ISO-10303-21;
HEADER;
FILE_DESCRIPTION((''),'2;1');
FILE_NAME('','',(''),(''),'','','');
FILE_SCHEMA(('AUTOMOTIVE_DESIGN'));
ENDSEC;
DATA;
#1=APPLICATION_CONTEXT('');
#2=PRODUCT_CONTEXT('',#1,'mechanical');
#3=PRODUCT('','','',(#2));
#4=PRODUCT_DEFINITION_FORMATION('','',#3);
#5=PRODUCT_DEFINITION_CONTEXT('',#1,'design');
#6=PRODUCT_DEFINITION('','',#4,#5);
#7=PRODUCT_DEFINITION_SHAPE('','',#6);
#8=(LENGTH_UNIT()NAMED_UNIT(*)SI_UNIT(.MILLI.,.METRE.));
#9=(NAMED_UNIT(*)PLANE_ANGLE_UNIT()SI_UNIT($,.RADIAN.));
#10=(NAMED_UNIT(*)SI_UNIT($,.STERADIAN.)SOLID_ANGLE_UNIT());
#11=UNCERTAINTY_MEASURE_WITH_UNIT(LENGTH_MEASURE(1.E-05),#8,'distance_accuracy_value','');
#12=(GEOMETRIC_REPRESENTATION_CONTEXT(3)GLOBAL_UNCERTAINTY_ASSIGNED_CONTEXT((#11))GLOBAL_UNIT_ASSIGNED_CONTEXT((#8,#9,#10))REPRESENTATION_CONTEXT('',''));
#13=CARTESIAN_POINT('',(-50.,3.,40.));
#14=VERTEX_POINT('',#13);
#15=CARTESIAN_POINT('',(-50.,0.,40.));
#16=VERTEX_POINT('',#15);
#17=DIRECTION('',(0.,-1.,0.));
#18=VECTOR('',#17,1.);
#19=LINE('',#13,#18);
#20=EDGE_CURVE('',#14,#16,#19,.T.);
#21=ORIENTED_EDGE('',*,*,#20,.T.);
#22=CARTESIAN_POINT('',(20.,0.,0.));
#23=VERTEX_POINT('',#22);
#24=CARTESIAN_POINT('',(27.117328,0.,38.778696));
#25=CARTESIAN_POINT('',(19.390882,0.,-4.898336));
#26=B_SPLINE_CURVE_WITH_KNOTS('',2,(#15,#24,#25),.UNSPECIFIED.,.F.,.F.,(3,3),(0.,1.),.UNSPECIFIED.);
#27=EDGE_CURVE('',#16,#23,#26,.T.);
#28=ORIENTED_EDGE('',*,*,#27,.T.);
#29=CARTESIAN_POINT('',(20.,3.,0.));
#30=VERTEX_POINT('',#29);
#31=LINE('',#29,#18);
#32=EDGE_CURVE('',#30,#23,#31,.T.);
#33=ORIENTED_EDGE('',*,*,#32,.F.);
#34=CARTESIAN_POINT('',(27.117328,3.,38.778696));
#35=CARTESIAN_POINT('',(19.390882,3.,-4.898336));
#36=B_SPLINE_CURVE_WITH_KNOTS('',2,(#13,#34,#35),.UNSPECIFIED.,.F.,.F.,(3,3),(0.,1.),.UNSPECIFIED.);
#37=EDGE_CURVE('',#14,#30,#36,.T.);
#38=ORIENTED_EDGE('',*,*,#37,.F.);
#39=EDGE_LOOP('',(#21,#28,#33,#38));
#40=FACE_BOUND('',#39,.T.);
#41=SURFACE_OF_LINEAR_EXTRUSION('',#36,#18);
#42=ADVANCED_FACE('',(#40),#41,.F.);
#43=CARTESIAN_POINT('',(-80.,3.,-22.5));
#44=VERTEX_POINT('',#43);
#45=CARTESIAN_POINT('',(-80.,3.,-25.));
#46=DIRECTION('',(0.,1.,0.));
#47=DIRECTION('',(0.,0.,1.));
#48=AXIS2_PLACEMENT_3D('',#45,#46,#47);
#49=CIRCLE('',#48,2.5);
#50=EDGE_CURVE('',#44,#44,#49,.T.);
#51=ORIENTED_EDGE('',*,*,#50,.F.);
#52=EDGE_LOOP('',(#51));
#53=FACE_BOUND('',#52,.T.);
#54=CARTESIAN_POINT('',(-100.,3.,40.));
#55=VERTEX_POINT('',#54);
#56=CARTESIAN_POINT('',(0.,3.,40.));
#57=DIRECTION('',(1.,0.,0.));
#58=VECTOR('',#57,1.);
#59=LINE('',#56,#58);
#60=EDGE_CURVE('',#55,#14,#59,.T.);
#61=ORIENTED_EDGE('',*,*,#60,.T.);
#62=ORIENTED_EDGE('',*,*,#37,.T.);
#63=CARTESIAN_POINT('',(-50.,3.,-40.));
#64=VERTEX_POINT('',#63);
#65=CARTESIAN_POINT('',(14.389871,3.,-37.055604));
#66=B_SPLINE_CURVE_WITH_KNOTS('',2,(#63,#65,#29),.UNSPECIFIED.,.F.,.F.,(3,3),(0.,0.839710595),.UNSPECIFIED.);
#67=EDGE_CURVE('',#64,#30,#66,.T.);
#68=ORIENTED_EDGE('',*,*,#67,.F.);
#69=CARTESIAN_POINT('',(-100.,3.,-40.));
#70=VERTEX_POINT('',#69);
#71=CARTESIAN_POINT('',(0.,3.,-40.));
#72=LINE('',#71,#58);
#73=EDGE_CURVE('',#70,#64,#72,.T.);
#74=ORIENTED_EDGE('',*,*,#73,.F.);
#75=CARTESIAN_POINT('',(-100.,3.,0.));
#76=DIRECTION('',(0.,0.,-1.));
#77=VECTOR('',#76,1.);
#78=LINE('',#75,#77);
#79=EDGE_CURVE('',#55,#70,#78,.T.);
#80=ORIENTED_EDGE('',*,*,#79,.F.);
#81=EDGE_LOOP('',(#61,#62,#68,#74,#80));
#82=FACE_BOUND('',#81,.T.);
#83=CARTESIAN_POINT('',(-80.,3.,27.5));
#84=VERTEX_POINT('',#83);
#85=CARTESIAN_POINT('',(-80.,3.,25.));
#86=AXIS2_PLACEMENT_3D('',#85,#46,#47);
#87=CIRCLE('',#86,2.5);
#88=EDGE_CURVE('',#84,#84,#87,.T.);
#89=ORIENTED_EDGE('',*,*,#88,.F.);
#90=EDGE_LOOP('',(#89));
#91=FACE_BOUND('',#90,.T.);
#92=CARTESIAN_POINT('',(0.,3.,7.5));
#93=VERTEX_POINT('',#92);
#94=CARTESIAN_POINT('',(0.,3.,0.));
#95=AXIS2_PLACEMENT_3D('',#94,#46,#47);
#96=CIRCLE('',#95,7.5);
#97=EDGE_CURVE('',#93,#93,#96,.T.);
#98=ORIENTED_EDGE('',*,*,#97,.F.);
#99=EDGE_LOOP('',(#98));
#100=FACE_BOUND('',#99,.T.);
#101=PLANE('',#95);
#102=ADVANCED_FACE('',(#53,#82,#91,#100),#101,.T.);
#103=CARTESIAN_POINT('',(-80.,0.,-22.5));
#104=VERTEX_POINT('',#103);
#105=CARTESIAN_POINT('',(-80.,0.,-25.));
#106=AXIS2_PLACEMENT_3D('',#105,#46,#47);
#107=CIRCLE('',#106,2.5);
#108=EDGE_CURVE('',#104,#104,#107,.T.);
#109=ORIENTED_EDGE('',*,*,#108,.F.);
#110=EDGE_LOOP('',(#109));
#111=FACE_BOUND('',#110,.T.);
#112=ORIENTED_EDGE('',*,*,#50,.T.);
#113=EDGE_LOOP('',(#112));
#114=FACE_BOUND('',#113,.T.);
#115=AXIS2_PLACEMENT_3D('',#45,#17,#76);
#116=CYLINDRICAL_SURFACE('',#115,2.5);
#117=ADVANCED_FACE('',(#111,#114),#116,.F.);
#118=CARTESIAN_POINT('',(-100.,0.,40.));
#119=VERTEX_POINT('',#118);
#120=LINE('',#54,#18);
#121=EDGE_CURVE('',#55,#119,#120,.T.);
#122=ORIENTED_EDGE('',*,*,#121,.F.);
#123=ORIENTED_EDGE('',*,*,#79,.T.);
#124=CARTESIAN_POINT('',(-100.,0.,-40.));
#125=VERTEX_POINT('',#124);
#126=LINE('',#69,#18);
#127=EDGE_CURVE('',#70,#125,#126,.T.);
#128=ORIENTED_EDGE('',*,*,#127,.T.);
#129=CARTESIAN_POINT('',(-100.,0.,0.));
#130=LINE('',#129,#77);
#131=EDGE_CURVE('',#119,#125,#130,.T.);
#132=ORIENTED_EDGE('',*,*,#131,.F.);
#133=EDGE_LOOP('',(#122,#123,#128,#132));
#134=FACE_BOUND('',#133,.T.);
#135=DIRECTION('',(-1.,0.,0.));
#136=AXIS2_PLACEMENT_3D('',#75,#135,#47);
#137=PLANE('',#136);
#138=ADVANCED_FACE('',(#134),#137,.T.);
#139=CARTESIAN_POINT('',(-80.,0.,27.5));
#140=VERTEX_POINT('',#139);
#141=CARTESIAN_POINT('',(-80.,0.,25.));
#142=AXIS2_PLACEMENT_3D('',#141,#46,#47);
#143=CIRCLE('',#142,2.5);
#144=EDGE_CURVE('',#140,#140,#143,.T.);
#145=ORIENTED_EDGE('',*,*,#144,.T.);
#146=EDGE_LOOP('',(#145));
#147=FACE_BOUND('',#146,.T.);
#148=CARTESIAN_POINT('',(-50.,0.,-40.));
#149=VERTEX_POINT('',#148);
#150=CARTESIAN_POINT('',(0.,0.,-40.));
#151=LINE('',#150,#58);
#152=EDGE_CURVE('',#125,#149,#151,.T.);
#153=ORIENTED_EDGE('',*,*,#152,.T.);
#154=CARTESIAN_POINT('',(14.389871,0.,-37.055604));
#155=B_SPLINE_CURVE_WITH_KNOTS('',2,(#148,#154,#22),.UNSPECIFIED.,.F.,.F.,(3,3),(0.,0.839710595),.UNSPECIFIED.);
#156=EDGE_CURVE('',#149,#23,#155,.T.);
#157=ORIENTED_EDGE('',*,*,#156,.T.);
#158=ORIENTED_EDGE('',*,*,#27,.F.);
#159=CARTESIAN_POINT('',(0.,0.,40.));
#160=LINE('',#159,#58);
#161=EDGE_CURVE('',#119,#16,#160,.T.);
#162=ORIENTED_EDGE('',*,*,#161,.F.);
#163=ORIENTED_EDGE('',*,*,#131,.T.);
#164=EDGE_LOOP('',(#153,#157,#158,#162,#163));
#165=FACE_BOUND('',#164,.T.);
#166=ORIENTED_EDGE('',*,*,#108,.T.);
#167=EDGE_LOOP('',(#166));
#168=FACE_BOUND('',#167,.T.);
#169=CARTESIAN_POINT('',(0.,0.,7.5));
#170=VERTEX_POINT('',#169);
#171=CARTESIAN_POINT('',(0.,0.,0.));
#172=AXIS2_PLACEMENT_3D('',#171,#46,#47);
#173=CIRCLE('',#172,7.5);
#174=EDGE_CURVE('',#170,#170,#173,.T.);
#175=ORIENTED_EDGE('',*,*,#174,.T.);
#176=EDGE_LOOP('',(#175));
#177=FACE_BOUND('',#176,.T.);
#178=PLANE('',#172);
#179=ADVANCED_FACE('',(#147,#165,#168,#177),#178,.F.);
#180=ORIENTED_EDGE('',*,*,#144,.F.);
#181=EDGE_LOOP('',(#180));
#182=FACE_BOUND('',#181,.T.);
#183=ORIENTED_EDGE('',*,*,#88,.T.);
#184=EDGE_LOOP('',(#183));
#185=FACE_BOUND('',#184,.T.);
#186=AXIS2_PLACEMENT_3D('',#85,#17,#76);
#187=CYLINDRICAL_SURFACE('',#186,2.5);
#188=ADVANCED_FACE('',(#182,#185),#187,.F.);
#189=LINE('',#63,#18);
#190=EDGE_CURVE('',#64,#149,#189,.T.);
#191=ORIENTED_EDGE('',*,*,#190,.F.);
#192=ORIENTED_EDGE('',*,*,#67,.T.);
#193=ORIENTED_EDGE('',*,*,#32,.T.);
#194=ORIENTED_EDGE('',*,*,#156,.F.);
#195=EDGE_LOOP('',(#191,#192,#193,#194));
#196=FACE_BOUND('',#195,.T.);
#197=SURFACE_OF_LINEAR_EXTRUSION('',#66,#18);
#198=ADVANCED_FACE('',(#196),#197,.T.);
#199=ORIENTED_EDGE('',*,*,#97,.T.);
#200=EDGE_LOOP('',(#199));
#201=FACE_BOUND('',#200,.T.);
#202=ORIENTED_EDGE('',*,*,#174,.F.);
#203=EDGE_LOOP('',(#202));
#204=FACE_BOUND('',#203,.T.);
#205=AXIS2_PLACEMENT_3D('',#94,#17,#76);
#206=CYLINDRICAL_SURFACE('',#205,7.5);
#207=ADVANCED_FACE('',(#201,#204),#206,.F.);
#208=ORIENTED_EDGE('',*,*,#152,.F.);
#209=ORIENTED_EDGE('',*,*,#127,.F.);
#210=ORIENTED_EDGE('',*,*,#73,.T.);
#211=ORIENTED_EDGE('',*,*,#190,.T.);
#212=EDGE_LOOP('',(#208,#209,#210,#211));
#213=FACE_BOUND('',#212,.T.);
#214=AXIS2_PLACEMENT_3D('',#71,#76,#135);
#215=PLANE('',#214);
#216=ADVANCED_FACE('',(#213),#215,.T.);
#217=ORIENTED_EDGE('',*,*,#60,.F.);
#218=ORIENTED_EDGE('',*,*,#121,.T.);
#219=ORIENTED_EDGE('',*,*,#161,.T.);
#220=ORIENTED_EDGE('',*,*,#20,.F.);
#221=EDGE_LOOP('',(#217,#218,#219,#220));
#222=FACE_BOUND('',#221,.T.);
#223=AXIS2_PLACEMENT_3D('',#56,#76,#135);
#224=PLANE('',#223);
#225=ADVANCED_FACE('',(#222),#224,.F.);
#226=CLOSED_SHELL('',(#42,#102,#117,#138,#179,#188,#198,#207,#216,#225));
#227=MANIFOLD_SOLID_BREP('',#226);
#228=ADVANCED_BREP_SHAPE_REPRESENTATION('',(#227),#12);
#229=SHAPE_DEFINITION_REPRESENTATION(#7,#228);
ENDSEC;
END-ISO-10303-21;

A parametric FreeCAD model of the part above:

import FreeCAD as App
import Part
import Sketcher
Q = App.Units.Quantity

doc = App.newDocument("Part")
body = doc.addObject("PartDesign::Body", "Body")

# Sketch on XZ plane
sketch1 = body.newObject("Sketcher::SketchObject", "Sketch")
sketch1.AttachmentSupport = (doc.getObject("XZ_Plane"), [""])
sketch1.MapMode = "FlatFace"
sketch1.addGeometry([
    Part.LineSegment(App.Vector(-100, -40, 0), App.Vector(-100, 40, 0)),  # 0
    Part.LineSegment(App.Vector(-100, 40, 0), App.Vector(-50, 40, 0)),  # 1
    Part.BSplineCurve([App.Vector(-50, 40, 0), App.Vector(22.668263, 38.849155, 0), App.Vector(20, 0, 0)], [3, 3], [0, 0.942307838], False, 2, [1, 1, 1], False),  # 2
    Part.BSplineCurve([App.Vector(16.665093, -11.057788, 0), App.Vector(19.095873, -5.97187, 0), App.Vector(20, 0, 0)], [3, 3], [0.704383091, 0.839710595], False, 2, [1, 1, 1], False),  # 3
    Part.BSplineCurve([App.Vector(-50, -40, 0), App.Vector(4.012819, -37.530122, 0), App.Vector(16.665093, -11.057788, 0)], [3, 3], [0, 0.704383091], False, 2, [1, 1, 1], False),  # 4
    Part.LineSegment(App.Vector(-50, -40, 0), App.Vector(-100, -40, 0)),  # 5
    Part.Circle(App.Vector(-80, 25, 0), App.Vector(0, 0, 1), 2.5),  # 6
    Part.Circle(App.Vector(-80, -25, 0), App.Vector(0, 0, 1), 2.5),  # 7
    Part.Circle(App.Vector(0, 0, 0), App.Vector(0, 0, 1), 7.5),  # 8
], False)
sketch1.addConstraint([
    Sketcher.Constraint("Block", 2),
    Sketcher.Constraint("Block", 3),
    Sketcher.Constraint("Block", 4),
    Sketcher.Constraint("Coincident", 0, 2, 1, 1),
    Sketcher.Constraint("Coincident", 1, 2, 2, 1),
    Sketcher.Constraint("Coincident", 4, 1, 5, 1),
    Sketcher.Constraint("Coincident", 5, 2, 0, 1),
    Sketcher.Constraint("Vertical", 0),
    Sketcher.Constraint("Horizontal", 1),
    Sketcher.Constraint("Horizontal", 5),
    Sketcher.Constraint("Coincident", 8, 3, -1, 1),
    Sketcher.Constraint("Equal", 6, 7),
    Sketcher.Constraint("Symmetric", 6, 3, 7, 3, -1),
    Sketcher.Constraint("Diameter", 6, Q("5 mm")),
    Sketcher.Constraint("Diameter", 8, Q("15 mm")),
    Sketcher.Constraint("DistanceX", 1, 1, 1, 2, Q("50 mm")),
    Sketcher.Constraint("DistanceX", 6, 3, -1, 1, Q("80 mm")),
    Sketcher.Constraint("DistanceY", -1, 1, 6, 3, Q("25 mm")),
])
pad1 = body.newObject("PartDesign::Pad", "Pad")
pad1.Profile = sketch1
pad1.Length = 3
pad1.Reversed = True

doc.recompute()
